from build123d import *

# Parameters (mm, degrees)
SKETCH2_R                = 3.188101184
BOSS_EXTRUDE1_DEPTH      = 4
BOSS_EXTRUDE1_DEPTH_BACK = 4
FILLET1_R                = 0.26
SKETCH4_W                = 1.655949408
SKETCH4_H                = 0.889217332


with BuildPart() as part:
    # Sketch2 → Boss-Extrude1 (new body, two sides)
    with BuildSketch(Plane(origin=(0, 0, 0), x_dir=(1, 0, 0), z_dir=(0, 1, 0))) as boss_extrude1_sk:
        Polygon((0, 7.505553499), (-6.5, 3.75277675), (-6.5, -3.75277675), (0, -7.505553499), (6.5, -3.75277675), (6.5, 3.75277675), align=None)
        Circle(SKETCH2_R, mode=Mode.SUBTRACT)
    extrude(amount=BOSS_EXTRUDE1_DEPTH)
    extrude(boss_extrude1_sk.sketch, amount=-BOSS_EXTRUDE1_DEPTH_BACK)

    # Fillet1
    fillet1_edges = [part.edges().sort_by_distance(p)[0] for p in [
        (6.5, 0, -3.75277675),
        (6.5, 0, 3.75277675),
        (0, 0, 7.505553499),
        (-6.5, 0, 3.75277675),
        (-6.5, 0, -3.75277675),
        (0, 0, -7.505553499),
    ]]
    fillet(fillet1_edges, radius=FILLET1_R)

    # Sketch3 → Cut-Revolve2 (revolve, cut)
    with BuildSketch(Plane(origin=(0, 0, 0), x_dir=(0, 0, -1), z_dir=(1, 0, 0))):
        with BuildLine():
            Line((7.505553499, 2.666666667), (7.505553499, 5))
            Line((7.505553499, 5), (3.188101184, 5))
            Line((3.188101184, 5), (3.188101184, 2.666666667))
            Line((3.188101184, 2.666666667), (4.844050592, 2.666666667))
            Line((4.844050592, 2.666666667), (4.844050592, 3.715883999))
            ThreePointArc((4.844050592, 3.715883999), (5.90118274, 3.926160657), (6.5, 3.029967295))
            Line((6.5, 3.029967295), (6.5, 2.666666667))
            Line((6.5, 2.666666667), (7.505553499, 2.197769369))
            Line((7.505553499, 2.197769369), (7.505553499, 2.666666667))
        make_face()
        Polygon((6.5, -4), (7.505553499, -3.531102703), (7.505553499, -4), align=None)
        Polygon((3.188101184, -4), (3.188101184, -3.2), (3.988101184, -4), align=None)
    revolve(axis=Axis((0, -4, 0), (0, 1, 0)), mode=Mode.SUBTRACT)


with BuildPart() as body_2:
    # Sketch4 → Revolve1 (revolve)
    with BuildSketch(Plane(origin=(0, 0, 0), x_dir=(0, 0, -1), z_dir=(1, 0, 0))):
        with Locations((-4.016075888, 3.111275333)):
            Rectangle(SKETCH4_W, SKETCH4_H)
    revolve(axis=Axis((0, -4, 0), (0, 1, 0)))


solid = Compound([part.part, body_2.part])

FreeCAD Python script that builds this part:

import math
import FreeCAD as App
import Part
import Sketcher

V = App.Vector
Q = App.Units.Quantity


def edges_at(feature, points):
    """Names of the edges that pass closest to the given points."""
    edges = feature.Shape.Edges
    near = lambda p: min(range(len(edges)), key=lambda i: edges[i].distToShape(Part.Vertex(*p))[0])
    return sorted({f"Edge{near(p) + 1}" for p in points})

doc = App.newDocument("Part")
body = doc.addObject("PartDesign::Body", "Body")

# Sketch on XZ plane
sketch1 = body.newObject("Sketcher::SketchObject", "Sketch")
sketch1.AttachmentSupport = (doc.getObject("XZ_Plane"), [""])
sketch1.MapMode = "FlatFace"
sketch1.addGeometry([
    Part.LineSegment(V(0, -7.5, 0), V(-6.5, -3.8, 0)),  # 0
    Part.LineSegment(V(-6.5, -3.8, 0), V(-6.5, 3.8, 0)),  # 1
    Part.LineSegment(V(-6.5, 3.8, 0), V(0, 7.5, 0)),  # 2
    Part.LineSegment(V(0, 7.5, 0), V(6.5, 3.8, 0)),  # 3
    Part.LineSegment(V(6.5, 3.8, 0), V(6.5, -3.8, 0)),  # 4
    Part.LineSegment(V(6.5, -3.8, 0), V(0, -7.5, 0)),  # 5
    Part.Circle(V(0, 0, 0), V(0, 0, 1), 3.2),  # 6
], False)
sketch1.addConstraint([
    Sketcher.Constraint("Coincident", 0, 2, 1, 1),
    Sketcher.Constraint("Coincident", 1, 2, 2, 1),
    Sketcher.Constraint("Coincident", 2, 2, 3, 1),
    Sketcher.Constraint("Coincident", 3, 2, 4, 1),
    Sketcher.Constraint("Coincident", 4, 2, 5, 1),
    Sketcher.Constraint("Coincident", 5, 2, 0, 1),
    Sketcher.Constraint("Vertical", 1),
    Sketcher.Constraint("Vertical", 4),
    Sketcher.Constraint("Coincident", 6, 3, -1, 1),
    Sketcher.Constraint("Symmetric", 0, 2, 3, 2, -1, 1),
    Sketcher.Constraint("Symmetric", 2, 2, 5, 2, -1, 1),
    Sketcher.Constraint("PointOnObject", 2, 2, -2),
    Sketcher.Constraint("Parallel", 2, 5),
    Sketcher.Constraint("Horizontal", 1, 2, 3, 2),
    Sketcher.Constraint("Angle", 0, Q("150 deg")),
    Sketcher.Constraint("DistanceX", 1, 2, 3, 2, Q("13 mm")),
    Sketcher.Constraint("Diameter", 6, Q("6.376202 mm")),
    Sketcher.Constraint("DistanceY", 1, 1, 1, 2, Q("7.505554 mm")),
])
pad1 = body.newObject("PartDesign::Pad", "Pad")
pad1.Profile = sketch1
pad1.Type = "TwoLengths"
pad1.Length = 4
pad1.Length2 = 4
pad1.Reversed = True
doc.recompute()

fillet = body.newObject("PartDesign::Fillet", "Fillet")
fillet.Base = (pad1, edges_at(pad1, [
    (6.5, 0, -3.753),
    (6.5, 0, 3.753),
    (0, 0, 7.506),
    (-6.5, 0, 3.753),
    (-6.5, 0, -3.753),
    (0, 0, -7.506),
]))
fillet.Radius = 0.26

# Sketch on YZ plane
sketch2 = body.newObject("Sketcher::SketchObject", "Sketch001")
sketch2.AttachmentSupport = (doc.getObject("YZ_Plane"), [""])
sketch2.MapMode = "FlatFace"
sketch2.addGeometry([
    Part.LineSegment(V(5, -7.51, 0), V(5, -3.19, 0)),  # 0
    Part.LineSegment(V(5, -3.19, 0), V(2.67, -3.19, 0)),  # 1
    Part.LineSegment(V(2.67, -3.19, 0), V(2.67, -4.84, 0)),  # 2
    Part.LineSegment(V(2.67, -4.84, 0), V(3.72, -4.84, 0)),  # 3
    Part.ArcOfCircle(Part.Circle(V(3.03, -5.53, 0), V(0, 0, 1), 0.97), math.radians(-90), math.radians(45)),  # 4
    Part.LineSegment(V(3.03, -6.5, 0), V(2.67, -6.5, 0)),  # 5
    Part.LineSegment(V(2.67, -6.5, 0), V(2.2, -7.51, 0)),  # 6
    Part.LineSegment(V(2.2, -7.51, 0), V(5, -7.51, 0)),  # 7
    Part.LineSegment(V(-3.53, -7.51, 0), V(-4, -6.5, 0)),  # 8
    Part.LineSegment(V(-4, -6.5, 0), V(-4, -7.51, 0)),  # 9
    Part.LineSegment(V(-4, -7.51, 0), V(-3.53, -7.51, 0)),  # 10
    Part.LineSegment(V(-3.2, -3.19, 0), V(-4, -3.19, 0)),  # 11
    Part.LineSegment(V(-4, -3.19, 0), V(-4, -3.99, 0)),  # 12
    Part.LineSegment(V(-4, -3.99, 0), V(-3.2, -3.19, 0)),  # 13
], False)
sketch2.addConstraint([
    Sketcher.Constraint("Coincident", 0, 2, 1, 1),
    Sketcher.Constraint("Coincident", 1, 2, 2, 1),
    Sketcher.Constraint("Coincident", 2, 2, 3, 1),
    Sketcher.Constraint("Coincident", 3, 2, 4, 2),
    Sketcher.Constraint("Tangent", 4, 1, 5, 1),
    Sketcher.Constraint("Coincident", 5, 2, 6, 1),
    Sketcher.Constraint("Coincident", 6, 2, 7, 1),
    Sketcher.Constraint("Coincident", 7, 2, 0, 1),
    Sketcher.Constraint("Coincident", 8, 2, 9, 1),
    Sketcher.Constraint("Coincident", 9, 2, 10, 1),
    Sketcher.Constraint("Coincident", 10, 2, 8, 1),
    Sketcher.Constraint("Coincident", 11, 2, 12, 1),
    Sketcher.Constraint("Coincident", 12, 2, 13, 1),
    Sketcher.Constraint("Coincident", 13, 2, 11, 1),
    Sketcher.Constraint("Vertical", 0),
    Sketcher.Constraint("Horizontal", 1),
    Sketcher.Constraint("Vertical", 2),
    Sketcher.Constraint("Horizontal", 3),
    Sketcher.Constraint("Horizontal", 5),
    Sketcher.Constraint("Horizontal", 7),
    Sketcher.Constraint("Vertical", 9),
    Sketcher.Constraint("Horizontal", 10),
    Sketcher.Constraint("Horizontal", 11),
    Sketcher.Constraint("Vertical", 12),
    Sketcher.Constraint("Horizontal", 5, 2, 8, 2),
    Sketcher.Constraint("Horizontal", 7, 2, 9, 2),
    Sketcher.Constraint("Horizontal", 1, 2, 11, 2),
    Sketcher.Constraint("Vertical", 2, 2, 5, 2),
    Sketcher.Constraint("Vertical", 9, 2, 11, 2),
    Sketcher.Constraint("Equal", 11, 12),
    Sketcher.Constraint("Equal", 6, 8),
    Sketcher.Constraint("Angle", 6, Q("-115 deg")),
    Sketcher.Constraint("DistanceX", 11, 2, 11, 1, Q("0.8 mm")),
    Sketcher.Constraint("DistanceX", -1, 1, 0, 2, Q("5 mm")),
    Sketcher.Constraint("DistanceX", 8, 2, -1, 1, Q("4 mm")),
    Sketcher.Constraint("DistanceY", 4, 1, -1, 1, Q("6.5 mm")),
    Sketcher.Constraint("DistanceX", 5, 2, 5, 1, Q("0.363301 mm")),
    Sketcher.Constraint("Radius", 4, Q("0.970033 mm")),
    Sketcher.Constraint("DistanceX", 7, 1, 7, 2, Q("2.802231 mm")),
    Sketcher.Constraint("DistanceY", 2, 2, 2, 1, Q("1.655949 mm")),
    Sketcher.Constraint("DistanceY", 0, 2, -1, 1, Q("3.188101 mm")),
    Sketcher.Constraint("DistanceX", 1, 2, 1, 1, Q("2.333333 mm")),
])
groove = body.newObject("PartDesign::Groove", "Groove")
groove.Profile = sketch2
groove.ReferenceAxis = (sketch2, ["H_Axis"])
groove.Angle = 360
body2 = doc.addObject("PartDesign::Body", "Body001")

# Sketch on YZ plane
sketch3 = body2.newObject("Sketcher::SketchObject", "Sketch002")
sketch3.AttachmentSupport = (doc.getObject("YZ_Plane001"), [""])
sketch3.MapMode = "FlatFace"
sketch3.addGeometry([
    Part.LineSegment(V(3.6, 4.8, 0), V(2.7, 4.8, 0)),
    Part.LineSegment(V(2.7, 4.8, 0), V(2.7, 3.2, 0)),
    Part.LineSegment(V(2.7, 3.2, 0), V(3.6, 3.2, 0)),
    Part.LineSegment(V(3.6, 3.2, 0), V(3.6, 4.8, 0)),
], False)
sketch3.addConstraint([
    Sketcher.Constraint("Coincident", 0, 2, 1, 1),
    Sketcher.Constraint("Coincident", 1, 2, 2, 1),
    Sketcher.Constraint("Coincident", 2, 2, 3, 1),
    Sketcher.Constraint("Coincident", 3, 2, 0, 1),
    Sketcher.Constraint("Horizontal", 0),
    Sketcher.Constraint("Vertical", 1),
    Sketcher.Constraint("Horizontal", 2),
    Sketcher.Constraint("Vertical", 3),
    Sketcher.Constraint("DistanceY", 1, 2, 1, 1, Q("1.655949 mm")),
    Sketcher.Constraint("DistanceY", -1, 1, 1, 2, Q("3.188101 mm")),
    Sketcher.Constraint("DistanceX", 0, 2, 0, 1, Q("0.889217 mm")),
    Sketcher.Constraint("DistanceX", -1, 1, 0, 2, Q("2.666667 mm")),
])
revolution = body2.newObject("PartDesign::Revolution", "Revolution")
revolution.Profile = sketch3
revolution.ReferenceAxis = (sketch3, ["H_Axis"])
revolution.Angle = 360

doc.recompute()
